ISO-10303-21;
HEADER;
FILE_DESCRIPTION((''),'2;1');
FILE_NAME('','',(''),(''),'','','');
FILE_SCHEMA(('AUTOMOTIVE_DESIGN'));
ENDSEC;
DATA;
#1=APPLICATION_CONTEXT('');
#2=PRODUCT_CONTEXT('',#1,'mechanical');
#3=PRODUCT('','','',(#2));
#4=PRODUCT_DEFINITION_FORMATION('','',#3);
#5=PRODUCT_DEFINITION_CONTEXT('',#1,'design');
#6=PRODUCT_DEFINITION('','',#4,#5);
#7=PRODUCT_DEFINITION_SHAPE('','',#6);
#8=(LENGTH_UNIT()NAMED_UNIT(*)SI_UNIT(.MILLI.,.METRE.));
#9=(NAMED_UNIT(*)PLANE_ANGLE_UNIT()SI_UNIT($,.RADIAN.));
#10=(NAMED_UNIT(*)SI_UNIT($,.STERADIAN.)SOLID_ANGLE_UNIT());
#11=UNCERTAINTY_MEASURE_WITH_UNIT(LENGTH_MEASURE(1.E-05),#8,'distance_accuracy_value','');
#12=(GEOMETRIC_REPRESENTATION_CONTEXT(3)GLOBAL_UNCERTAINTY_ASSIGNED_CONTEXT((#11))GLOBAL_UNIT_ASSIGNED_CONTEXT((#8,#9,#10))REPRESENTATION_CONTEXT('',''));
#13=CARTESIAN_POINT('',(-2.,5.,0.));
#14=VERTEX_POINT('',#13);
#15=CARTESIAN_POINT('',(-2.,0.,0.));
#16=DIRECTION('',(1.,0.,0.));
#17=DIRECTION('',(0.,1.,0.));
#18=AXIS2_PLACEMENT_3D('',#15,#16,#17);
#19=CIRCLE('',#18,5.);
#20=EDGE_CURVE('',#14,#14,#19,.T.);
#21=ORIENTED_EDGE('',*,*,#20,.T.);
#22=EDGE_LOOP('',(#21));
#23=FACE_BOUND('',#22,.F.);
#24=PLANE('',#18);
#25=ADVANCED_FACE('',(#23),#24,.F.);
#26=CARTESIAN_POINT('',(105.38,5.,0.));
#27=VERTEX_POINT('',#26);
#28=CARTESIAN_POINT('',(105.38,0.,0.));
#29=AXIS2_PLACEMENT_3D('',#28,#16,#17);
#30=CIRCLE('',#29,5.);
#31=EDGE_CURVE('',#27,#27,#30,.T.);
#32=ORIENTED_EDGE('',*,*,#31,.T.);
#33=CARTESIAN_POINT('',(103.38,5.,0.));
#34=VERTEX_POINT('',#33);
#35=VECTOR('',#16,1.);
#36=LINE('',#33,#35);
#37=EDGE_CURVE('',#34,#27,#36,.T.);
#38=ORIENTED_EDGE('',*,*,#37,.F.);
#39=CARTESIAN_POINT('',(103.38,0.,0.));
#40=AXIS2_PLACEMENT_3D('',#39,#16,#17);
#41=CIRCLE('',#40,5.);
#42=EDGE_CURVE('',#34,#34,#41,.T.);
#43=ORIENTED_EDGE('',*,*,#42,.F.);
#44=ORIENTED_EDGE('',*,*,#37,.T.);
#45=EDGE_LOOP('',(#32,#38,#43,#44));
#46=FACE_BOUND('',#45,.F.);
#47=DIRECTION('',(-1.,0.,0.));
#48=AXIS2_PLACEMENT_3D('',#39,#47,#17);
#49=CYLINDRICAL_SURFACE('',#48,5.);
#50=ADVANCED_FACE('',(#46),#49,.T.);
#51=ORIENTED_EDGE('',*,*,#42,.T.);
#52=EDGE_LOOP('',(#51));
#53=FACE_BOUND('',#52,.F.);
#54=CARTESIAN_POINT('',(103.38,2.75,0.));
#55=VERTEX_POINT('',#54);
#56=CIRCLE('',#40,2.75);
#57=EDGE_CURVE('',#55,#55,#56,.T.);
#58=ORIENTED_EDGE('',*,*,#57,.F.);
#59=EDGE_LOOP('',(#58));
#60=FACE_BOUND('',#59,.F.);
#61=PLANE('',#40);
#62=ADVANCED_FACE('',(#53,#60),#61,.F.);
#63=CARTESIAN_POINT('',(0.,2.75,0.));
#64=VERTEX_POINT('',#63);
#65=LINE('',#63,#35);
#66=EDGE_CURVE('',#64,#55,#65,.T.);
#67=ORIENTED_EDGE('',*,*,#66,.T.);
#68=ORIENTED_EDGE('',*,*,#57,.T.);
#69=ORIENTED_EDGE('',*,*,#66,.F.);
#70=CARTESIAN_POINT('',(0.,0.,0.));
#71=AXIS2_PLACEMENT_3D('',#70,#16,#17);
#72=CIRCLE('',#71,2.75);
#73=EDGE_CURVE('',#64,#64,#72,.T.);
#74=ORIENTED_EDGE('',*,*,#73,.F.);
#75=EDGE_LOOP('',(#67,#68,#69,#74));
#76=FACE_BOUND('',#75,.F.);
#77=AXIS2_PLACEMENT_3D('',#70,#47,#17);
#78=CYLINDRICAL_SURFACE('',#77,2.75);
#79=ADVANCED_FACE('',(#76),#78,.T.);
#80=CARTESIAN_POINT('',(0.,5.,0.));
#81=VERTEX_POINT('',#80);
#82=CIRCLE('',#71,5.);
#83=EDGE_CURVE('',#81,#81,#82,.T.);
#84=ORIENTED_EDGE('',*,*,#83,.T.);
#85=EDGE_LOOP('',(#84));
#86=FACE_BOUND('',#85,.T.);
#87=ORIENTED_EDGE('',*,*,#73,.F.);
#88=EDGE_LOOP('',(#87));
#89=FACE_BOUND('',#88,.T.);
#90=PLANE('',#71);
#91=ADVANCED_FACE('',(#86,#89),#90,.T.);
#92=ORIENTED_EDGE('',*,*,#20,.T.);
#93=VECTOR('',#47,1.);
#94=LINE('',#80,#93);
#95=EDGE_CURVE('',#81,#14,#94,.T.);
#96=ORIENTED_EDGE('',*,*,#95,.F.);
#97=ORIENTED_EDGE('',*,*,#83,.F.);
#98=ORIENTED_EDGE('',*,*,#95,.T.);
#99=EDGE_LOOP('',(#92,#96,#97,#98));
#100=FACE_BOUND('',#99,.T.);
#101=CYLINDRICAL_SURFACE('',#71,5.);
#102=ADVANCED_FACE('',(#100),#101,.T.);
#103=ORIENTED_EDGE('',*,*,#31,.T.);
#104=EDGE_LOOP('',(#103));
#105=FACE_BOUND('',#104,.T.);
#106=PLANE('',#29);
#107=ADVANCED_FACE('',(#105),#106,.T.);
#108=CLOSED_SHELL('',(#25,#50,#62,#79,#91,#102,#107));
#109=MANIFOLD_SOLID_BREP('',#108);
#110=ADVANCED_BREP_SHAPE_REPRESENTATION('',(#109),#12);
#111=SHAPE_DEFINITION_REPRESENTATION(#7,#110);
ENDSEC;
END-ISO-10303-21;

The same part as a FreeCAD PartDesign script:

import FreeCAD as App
import Part
import Sketcher

doc = App.newDocument("Part")
body = doc.addObject("PartDesign::Body", "Body")

# Sketch on YZ plane
sketch1 = body.newObject("Sketcher::SketchObject", "Sketch")
sketch1.AttachmentSupport = (doc.getObject("YZ_Plane"), [""])
sketch1.MapMode = "FlatFace"
sketch1.addGeometry(Part.Circle(App.Vector(0, 0, 0), App.Vector(0, 0, 1), 2.8), False)
sketch1.addConstraint(Sketcher.Constraint("Coincident", 0, 3, -1, 1))
sketch1.addConstraint(Sketcher.Constraint("Diameter", 0, 5.5))
pad1 = body.newObject("PartDesign::Pad", "Pad")
pad1.Profile = sketch1
pad1.Length = 103.38

# Sketch on YZ plane
sketch2 = body.newObject("Sketcher::SketchObject", "Sketch001")
sketch2.AttachmentSupport = (doc.getObject("YZ_Plane"), [""])
sketch2.MapMode = "FlatFace"
sketch2.addGeometry(Part.Circle(App.Vector(0, 0, 0), App.Vector(0, 0, 1), 5), False)
sketch2.addConstraint(Sketcher.Constraint("Coincident", 0, 3, -1, 1))
sketch2.addConstraint(Sketcher.Constraint("Diameter", 0, 10.0))
pad2 = body.newObject("PartDesign::Pad", "Pad001")
pad2.Profile = sketch2
pad2.Length = 2
pad2.Reversed = True

# Sketch on YZ plane
sketch3 = body.newObject("Sketcher::SketchObject", "Sketch002")
sketch3.AttachmentSupport = (doc.getObject("YZ_Plane"), [""])
sketch3.MapMode = "FlatFace"
sketch3.AttachmentOffset = App.Placement(App.Vector(0, 0, 103.38), App.Rotation())
sketch3.addGeometry(Part.Circle(App.Vector(0, 0, 0), App.Vector(0, 0, 1), 5), False)
sketch3.addConstraint(Sketcher.Constraint("Coincident", 0, 3, -1, 1))
sketch3.addConstraint(Sketcher.Constraint("Diameter", 0, 10.0))
pad3 = body.newObject("PartDesign::Pad", "Pad002")
pad3.Profile = sketch3
pad3.Length = 2

doc.recompute()
